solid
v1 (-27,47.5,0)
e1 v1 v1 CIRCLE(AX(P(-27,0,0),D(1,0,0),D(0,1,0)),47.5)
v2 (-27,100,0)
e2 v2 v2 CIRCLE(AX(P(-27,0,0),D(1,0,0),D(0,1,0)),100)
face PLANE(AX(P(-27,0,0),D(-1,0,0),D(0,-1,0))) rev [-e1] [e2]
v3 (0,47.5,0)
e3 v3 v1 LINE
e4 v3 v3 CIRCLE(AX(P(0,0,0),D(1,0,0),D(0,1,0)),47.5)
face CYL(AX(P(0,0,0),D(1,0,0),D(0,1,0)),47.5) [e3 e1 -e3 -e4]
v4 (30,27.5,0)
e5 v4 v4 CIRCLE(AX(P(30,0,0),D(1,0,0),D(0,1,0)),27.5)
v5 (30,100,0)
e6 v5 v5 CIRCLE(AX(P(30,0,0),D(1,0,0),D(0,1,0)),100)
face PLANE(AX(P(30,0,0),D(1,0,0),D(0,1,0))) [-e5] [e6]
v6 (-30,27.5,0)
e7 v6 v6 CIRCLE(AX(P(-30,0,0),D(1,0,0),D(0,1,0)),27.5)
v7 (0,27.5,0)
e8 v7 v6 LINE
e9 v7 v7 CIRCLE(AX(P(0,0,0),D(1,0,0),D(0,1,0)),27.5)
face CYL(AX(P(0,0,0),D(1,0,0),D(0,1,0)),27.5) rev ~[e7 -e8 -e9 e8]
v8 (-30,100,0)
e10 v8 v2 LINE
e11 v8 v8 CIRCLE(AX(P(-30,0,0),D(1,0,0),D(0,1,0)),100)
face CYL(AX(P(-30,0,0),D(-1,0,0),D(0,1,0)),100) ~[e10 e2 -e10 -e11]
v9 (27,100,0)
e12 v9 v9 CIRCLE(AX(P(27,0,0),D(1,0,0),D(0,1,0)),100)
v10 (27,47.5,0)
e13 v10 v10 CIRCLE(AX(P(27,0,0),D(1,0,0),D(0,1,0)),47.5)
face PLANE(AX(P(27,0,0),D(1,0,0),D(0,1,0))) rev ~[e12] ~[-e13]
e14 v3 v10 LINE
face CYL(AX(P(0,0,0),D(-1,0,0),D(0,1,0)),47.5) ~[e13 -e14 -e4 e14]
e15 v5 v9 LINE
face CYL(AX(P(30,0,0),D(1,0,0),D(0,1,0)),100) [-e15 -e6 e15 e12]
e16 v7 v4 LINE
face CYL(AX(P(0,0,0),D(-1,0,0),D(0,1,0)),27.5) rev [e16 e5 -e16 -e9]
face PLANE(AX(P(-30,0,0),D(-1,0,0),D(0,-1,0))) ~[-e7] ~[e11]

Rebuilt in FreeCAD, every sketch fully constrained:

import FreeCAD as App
import Part
import Sketcher

V = App.Vector
Q = App.Units.Quantity

doc = App.newDocument("Part")
body = doc.addObject("PartDesign::Body", "Body")

# Sketch on YZ plane
sketch1 = body.newObject("Sketcher::SketchObject", "Sketch")
sketch1.AttachmentSupport = (doc.getObject("YZ_Plane"), [""])
sketch1.MapMode = "FlatFace"
sketch1.addGeometry([
    Part.Circle(V(0, 0, 0), V(0, 0, 1), 48),
    Part.Circle(V(0, 0, 0), V(0, 0, 1), 28),
], False)
sketch1.addConstraint([
    Sketcher.Constraint("Coincident", 0, 3, -1, 1),
    Sketcher.Constraint("Coincident", 1, 3, -1, 1),
    Sketcher.Constraint("Diameter", 0, Q("95 mm")),
    Sketcher.Constraint("Diameter", 1, Q("55 mm")),
])
pad1 = body.newObject("PartDesign::Pad", "Pad")
pad1.Profile = sketch1
pad1.Length = 30

# Sketch on YZ plane
sketch2 = body.newObject("Sketcher::SketchObject", "Sketch001")
sketch2.AttachmentSupport = (doc.getObject("YZ_Plane"), [""])
sketch2.MapMode = "FlatFace"
sketch2.AttachmentOffset = App.Placement(V(0, 0, 30), App.Rotation())
sketch2.addGeometry([
    Part.Circle(V(0, 0, 0), V(0, 0, 1), 100),
    Part.Circle(V(0, 0, 0), V(0, 0, 1), 48),
], False)
sketch2.addConstraint([
    Sketcher.Constraint("Coincident", 0, 3, -1, 1),
    Sketcher.Constraint("Coincident", 1, 3, -1, 1),
    Sketcher.Constraint("Diameter", 0, Q("200 mm")),
    Sketcher.Constraint("Diameter", 1, Q("95 mm")),
])
pad2 = body.newObject("PartDesign::Pad", "Pad001")
pad2.Profile = sketch2
pad2.Length = 3
pad2.Reversed = True
body2 = doc.addObject("PartDesign::Body", "Body001")
doc.recompute()

body2.BaseFeature = body
doc.recompute()

mirroring = doc.addObject("Part::Mirroring", "Mirroring")
mirroring.Source = body
mirroring.Base = V(0, 0, 0)
mirroring.Normal = V(-1, 0, 0)
body3 = doc.addObject("PartDesign::Body", "Body002")
body3.BaseFeature = mirroring
boolean = body2.newObject("PartDesign::Boolean", "Boolean")
boolean.Type = "Fuse"
boolean.addObjects([body3])
doc.recompute()
mirroring.Visibility = False

doc.recompute()
